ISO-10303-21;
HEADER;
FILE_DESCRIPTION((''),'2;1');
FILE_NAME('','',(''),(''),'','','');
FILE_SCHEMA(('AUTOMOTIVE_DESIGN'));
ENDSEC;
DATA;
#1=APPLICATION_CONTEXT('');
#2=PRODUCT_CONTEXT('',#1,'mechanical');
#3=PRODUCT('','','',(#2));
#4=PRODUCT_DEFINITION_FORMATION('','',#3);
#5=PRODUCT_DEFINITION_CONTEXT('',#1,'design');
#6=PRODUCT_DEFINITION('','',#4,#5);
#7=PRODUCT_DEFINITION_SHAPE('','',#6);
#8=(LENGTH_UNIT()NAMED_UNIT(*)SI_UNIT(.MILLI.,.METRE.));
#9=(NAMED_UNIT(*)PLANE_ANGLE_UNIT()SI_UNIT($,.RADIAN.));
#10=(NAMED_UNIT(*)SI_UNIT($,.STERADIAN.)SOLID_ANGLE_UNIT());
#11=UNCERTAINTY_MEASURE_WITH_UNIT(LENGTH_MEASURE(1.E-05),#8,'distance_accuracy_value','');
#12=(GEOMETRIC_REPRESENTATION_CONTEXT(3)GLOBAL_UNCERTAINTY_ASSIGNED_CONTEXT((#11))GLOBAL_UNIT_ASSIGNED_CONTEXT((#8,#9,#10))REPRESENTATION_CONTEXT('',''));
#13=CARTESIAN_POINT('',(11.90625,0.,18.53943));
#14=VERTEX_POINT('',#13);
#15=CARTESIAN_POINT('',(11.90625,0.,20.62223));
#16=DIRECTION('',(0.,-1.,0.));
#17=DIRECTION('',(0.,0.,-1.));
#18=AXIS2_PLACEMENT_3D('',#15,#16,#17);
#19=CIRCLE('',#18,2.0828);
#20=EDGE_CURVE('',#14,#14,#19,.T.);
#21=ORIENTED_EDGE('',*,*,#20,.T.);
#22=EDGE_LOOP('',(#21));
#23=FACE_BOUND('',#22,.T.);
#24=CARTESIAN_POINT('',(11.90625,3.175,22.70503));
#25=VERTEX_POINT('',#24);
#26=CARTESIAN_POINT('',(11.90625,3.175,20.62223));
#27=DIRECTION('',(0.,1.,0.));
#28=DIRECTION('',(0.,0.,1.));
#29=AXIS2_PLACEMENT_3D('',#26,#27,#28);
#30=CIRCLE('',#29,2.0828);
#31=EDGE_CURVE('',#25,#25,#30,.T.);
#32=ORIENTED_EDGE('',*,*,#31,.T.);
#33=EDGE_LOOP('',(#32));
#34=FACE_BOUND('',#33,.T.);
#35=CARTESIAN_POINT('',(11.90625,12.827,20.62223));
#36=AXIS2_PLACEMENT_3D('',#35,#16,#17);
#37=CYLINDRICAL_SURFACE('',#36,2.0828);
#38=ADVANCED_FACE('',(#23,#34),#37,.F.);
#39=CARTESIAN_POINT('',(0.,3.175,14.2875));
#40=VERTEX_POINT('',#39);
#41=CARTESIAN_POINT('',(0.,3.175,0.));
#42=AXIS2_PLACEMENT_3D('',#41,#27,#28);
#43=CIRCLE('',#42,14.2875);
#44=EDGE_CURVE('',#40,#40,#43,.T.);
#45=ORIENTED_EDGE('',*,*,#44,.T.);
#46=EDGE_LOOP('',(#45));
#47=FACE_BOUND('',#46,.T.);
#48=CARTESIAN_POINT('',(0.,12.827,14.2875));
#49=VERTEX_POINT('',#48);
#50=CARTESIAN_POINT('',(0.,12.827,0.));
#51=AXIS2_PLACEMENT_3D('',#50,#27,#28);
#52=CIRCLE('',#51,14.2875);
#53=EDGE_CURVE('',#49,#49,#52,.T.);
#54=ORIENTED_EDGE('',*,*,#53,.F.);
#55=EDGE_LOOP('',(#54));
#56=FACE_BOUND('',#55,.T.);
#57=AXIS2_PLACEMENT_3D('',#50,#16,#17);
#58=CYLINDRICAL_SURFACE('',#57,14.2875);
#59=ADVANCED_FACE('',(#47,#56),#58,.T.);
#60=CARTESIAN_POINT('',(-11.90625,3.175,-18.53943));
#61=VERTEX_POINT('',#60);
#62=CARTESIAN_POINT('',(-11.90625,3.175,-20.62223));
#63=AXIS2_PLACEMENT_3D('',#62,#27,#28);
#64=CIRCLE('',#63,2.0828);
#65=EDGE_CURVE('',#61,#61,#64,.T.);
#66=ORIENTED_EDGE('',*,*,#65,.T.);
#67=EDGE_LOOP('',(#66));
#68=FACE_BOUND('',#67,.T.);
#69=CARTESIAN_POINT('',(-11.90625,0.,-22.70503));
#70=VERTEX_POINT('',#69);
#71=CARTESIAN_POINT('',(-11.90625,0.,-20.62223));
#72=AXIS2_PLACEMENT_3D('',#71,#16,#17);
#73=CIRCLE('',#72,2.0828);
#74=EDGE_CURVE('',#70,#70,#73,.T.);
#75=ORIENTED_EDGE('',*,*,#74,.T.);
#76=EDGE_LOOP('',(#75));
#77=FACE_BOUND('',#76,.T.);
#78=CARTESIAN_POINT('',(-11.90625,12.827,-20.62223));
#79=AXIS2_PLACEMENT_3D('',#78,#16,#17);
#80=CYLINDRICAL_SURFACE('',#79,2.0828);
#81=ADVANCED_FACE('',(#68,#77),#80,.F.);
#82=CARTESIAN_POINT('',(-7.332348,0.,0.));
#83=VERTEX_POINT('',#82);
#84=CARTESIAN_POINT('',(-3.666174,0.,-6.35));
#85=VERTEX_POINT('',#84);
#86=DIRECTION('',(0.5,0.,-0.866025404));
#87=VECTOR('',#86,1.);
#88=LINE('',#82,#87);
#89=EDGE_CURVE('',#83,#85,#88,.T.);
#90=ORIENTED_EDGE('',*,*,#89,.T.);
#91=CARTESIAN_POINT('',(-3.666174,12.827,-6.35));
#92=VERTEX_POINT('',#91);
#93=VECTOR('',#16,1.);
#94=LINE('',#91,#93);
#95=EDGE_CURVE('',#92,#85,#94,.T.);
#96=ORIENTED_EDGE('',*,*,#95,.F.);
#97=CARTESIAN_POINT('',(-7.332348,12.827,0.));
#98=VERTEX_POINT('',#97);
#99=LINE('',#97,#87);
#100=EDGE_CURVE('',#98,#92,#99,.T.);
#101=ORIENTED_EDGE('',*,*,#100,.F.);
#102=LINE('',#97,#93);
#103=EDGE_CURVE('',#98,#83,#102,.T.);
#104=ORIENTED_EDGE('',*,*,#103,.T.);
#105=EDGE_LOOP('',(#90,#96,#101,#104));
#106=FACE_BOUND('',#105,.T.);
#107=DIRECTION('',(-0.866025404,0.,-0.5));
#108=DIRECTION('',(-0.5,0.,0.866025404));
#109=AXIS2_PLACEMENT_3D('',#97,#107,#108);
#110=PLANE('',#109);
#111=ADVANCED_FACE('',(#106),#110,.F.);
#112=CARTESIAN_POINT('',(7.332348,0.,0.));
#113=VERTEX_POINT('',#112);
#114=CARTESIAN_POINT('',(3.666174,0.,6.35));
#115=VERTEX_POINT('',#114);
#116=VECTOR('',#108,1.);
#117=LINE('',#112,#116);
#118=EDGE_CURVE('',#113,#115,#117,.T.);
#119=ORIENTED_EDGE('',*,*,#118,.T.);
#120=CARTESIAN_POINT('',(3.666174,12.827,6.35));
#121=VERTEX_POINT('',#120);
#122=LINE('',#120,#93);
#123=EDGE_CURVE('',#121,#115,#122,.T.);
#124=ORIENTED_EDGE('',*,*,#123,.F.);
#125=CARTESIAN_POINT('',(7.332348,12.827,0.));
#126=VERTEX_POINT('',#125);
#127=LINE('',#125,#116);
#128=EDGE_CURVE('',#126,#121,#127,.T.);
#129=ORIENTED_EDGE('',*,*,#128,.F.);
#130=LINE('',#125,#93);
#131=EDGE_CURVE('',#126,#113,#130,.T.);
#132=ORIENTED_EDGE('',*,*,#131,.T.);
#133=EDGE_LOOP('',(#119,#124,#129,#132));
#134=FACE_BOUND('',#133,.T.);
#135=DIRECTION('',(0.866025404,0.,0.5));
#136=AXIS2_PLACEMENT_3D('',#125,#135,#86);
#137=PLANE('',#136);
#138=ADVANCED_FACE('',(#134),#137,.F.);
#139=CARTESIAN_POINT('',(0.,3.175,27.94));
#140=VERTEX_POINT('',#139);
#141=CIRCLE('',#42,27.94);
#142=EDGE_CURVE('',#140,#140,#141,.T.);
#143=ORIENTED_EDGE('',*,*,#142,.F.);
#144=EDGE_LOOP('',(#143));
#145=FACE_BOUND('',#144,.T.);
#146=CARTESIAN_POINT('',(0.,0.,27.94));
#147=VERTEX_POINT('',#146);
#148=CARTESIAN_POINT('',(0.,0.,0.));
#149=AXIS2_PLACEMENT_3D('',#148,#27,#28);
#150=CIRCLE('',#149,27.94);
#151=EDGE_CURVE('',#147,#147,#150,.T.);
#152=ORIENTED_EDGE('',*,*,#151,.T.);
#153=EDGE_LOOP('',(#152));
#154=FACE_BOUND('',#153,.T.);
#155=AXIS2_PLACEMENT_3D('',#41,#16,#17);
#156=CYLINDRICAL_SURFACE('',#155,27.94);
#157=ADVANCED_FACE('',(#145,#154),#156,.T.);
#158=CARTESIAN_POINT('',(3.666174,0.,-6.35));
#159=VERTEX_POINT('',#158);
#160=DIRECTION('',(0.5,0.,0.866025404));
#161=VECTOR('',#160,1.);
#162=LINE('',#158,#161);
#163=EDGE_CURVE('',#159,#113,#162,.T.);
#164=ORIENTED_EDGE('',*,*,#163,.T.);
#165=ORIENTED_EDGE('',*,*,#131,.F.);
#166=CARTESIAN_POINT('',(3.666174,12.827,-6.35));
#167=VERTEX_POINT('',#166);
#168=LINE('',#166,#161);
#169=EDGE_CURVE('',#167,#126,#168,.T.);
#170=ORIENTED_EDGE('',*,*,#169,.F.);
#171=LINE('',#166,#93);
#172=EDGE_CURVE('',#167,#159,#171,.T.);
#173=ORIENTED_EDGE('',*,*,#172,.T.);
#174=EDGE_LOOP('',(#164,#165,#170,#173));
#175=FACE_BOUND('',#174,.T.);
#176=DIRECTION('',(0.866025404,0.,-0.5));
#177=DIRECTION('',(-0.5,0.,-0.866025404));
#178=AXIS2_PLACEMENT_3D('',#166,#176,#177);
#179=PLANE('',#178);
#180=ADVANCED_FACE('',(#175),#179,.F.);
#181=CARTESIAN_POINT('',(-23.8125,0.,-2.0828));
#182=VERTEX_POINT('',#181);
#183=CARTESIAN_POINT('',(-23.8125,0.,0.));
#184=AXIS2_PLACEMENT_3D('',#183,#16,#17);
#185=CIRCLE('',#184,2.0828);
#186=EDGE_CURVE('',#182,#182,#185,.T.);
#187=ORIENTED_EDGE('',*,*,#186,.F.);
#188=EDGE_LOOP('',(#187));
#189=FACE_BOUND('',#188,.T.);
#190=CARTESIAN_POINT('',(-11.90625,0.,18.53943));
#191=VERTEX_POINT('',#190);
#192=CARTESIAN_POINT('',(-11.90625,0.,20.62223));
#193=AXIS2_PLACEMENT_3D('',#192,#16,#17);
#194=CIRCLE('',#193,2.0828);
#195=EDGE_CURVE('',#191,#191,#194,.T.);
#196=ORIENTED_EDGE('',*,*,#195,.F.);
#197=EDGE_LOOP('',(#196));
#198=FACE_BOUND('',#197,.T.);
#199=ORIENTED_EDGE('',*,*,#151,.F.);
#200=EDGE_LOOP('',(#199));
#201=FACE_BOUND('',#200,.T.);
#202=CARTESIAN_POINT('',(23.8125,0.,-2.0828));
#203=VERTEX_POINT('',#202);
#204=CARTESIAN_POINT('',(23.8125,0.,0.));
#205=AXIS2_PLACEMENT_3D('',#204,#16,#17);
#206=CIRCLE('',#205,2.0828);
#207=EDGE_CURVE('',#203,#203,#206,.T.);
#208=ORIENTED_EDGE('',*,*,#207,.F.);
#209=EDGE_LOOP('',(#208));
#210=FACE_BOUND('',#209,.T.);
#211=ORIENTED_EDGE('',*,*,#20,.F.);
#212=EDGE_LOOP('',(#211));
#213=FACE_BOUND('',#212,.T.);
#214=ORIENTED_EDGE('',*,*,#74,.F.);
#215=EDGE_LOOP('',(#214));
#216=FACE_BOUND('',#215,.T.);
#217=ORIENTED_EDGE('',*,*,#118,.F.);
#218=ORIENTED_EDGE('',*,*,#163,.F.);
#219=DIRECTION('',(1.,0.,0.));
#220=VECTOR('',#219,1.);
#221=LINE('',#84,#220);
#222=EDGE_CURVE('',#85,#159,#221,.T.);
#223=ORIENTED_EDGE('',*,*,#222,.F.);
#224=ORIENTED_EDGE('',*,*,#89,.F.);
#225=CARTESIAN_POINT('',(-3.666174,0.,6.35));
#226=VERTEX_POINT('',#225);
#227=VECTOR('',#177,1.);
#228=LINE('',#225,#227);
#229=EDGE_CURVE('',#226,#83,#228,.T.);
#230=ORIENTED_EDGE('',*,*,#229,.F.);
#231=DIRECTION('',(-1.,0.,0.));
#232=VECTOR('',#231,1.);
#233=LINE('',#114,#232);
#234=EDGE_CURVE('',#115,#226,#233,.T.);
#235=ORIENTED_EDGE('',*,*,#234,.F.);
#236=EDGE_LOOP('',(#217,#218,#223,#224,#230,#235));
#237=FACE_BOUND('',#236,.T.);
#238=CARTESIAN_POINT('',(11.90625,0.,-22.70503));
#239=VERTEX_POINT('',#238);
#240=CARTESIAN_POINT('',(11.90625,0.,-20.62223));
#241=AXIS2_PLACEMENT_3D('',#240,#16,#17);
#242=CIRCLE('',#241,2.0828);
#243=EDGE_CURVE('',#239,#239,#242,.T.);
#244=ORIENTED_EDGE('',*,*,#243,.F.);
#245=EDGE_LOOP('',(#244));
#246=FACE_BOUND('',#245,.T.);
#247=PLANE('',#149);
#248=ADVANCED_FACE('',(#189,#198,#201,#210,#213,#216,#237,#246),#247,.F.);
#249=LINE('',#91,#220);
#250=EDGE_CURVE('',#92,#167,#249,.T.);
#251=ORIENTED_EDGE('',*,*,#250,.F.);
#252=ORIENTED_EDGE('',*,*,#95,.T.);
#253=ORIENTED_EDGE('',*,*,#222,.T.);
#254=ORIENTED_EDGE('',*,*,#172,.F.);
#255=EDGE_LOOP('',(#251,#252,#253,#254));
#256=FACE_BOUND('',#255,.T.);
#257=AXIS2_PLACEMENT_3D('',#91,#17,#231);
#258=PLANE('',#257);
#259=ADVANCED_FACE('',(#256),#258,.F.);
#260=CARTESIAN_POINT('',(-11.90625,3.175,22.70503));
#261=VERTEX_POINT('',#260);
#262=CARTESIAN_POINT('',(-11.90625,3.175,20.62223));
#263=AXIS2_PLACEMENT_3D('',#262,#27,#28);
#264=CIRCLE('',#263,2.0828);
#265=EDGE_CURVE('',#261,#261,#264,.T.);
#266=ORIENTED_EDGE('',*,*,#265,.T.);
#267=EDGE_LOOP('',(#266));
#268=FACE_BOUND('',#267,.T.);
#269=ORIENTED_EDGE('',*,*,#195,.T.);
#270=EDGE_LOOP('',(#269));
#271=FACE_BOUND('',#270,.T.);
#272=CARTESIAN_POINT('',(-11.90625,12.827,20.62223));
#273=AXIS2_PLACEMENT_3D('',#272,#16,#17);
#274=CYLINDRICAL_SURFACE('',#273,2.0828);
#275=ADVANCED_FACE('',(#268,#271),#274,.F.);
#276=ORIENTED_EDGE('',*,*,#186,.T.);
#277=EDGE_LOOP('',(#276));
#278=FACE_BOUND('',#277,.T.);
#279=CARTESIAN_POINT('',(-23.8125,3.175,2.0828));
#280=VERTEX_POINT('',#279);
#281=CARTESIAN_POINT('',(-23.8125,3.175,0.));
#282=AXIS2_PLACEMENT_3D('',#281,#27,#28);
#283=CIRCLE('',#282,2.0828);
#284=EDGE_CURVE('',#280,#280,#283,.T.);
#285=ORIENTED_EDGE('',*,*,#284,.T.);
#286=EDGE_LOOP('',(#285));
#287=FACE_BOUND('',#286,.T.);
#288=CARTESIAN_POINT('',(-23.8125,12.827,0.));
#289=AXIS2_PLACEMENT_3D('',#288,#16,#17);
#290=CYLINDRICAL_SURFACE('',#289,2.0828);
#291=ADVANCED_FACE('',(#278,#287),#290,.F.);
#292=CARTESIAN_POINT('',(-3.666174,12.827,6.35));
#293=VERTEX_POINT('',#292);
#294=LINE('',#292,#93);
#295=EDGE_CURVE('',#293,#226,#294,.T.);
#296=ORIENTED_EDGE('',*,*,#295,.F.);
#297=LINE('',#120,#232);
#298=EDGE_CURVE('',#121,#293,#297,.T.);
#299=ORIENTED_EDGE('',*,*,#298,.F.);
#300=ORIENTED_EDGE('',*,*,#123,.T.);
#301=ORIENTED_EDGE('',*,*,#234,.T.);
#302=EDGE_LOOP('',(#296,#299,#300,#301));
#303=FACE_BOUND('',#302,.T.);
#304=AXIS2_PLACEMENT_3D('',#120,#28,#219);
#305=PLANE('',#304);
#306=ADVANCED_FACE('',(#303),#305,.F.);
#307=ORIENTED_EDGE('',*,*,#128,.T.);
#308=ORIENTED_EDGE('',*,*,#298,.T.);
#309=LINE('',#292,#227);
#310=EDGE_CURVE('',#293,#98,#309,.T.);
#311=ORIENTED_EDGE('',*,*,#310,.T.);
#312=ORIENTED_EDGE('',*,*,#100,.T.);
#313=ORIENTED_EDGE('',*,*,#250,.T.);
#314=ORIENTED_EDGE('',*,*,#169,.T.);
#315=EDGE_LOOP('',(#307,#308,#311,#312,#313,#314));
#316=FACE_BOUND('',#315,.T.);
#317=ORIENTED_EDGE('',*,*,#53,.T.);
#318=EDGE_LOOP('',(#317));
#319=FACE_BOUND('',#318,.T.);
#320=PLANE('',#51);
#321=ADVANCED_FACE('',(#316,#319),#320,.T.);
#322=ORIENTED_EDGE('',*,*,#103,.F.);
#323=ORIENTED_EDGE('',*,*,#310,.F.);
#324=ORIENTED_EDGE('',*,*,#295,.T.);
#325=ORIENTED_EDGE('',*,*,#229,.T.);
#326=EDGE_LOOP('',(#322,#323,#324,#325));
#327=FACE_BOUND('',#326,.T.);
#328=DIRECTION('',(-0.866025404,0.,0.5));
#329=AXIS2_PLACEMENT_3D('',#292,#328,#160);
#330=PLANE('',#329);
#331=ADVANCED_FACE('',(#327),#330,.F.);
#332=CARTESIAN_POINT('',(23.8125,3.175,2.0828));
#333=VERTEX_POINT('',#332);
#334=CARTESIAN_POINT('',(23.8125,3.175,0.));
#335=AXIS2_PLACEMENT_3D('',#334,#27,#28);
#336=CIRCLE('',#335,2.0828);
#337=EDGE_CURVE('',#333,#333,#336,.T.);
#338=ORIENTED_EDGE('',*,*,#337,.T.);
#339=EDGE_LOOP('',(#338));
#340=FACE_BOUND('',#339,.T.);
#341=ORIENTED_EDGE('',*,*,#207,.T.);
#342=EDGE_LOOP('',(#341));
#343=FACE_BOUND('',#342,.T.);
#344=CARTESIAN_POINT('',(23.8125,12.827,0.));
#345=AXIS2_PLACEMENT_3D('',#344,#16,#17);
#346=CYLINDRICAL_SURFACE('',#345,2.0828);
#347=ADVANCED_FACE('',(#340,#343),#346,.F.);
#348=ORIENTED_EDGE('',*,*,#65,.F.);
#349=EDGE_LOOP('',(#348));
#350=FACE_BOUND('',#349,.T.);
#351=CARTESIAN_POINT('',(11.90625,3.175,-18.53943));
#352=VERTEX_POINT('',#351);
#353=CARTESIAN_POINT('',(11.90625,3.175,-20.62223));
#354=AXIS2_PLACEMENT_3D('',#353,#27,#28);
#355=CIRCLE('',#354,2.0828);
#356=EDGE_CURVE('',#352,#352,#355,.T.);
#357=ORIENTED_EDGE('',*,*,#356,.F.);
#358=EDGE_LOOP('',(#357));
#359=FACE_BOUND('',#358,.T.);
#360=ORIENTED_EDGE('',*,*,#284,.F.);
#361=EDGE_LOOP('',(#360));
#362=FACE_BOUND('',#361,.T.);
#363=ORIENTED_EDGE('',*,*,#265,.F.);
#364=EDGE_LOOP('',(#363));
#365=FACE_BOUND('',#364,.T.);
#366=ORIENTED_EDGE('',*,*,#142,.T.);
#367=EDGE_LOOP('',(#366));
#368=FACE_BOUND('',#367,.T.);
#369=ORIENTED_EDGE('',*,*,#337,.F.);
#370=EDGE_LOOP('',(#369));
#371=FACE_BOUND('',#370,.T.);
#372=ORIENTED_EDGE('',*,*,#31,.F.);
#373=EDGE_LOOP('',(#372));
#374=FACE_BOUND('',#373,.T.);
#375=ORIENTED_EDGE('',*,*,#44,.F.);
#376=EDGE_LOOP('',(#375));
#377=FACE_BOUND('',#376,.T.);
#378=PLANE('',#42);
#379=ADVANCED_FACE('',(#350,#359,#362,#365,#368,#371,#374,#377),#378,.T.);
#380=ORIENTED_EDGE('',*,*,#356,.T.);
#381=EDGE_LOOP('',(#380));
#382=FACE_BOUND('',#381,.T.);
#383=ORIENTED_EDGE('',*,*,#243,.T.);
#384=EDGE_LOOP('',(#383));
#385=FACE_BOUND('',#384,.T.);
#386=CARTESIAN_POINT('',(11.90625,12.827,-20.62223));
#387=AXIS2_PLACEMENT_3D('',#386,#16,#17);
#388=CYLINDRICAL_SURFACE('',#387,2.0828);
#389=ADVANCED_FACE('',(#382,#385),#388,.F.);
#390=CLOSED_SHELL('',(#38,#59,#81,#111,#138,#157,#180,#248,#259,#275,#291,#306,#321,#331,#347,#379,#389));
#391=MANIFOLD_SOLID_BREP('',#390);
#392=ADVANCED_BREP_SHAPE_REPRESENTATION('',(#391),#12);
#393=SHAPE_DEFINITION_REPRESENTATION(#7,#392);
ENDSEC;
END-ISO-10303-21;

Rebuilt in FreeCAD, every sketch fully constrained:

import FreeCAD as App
import Part
import Sketcher
from FreeCAD import Vector
Q = App.Units.Quantity

doc = App.newDocument("Part")
body = doc.addObject("PartDesign::Body", "Body")

sketch1 = body.newObject("Sketcher::SketchObject", "Sketch")
sketch1.AttachmentSupport = (doc.getObject("XZ_Plane"), [""])
sketch1.MapMode = "FlatFace"
sketch1.addGeometry(Part.Circle(Vector(0, 0, 0), Vector(0, 0, 1), 27.94), False)
sketch1.addConstraint(Sketcher.Constraint("Coincident", 0, 3, -1, 1))
sketch1.addConstraint(Sketcher.Constraint("Diameter", 0, Q("2.2 in")))
pad1 = body.newObject("PartDesign::Pad", "Pad")
pad1.Profile = sketch1
pad1.Length = Q("0.125 in")
pad1.Reversed = True

sketch2 = body.newObject("Sketcher::SketchObject", "Sketch001")
sketch2.AttachmentSupport = (doc.getObject("XZ_Plane"), [""])
sketch2.MapMode = "FlatFace"
sketch2.AttachmentOffset = App.Placement(Vector(0, 0, -0.125 * 25.4), App.Rotation())
sketch2.addGeometry(Part.Circle(Vector(0, 0, 0), Vector(0, 0, 1), 14.2875), False)
sketch2.addConstraint(Sketcher.Constraint("Coincident", 0, 3, -1, 1))
sketch2.addConstraint(Sketcher.Constraint("Diameter", 0, Q("1.125 in")))
pad2 = body.newObject("PartDesign::Pad", "Pad001")
pad2.Profile = sketch2
pad2.Length = Q("0.38 in")
pad2.Reversed = True

sketch3 = body.newObject("Sketcher::SketchObject", "Sketch002")
sketch3.AttachmentSupport = (doc.getObject("XZ_Plane"), [""])
sketch3.MapMode = "FlatFace"
sketch3.addGeometry(Part.LineSegment(Vector(3.666174, -6.35, 0), Vector(7.332348, 0, 0)), False)
sketch3.addGeometry(Part.LineSegment(Vector(7.332348, 0, 0), Vector(3.666174, 6.35, 0)), False)
sketch3.addGeometry(Part.LineSegment(Vector(3.666174, 6.35, 0), Vector(-3.666174, 6.35, 0)), False)
sketch3.addGeometry(Part.LineSegment(Vector(-3.666174, 6.35, 0), Vector(-7.332348, 0, 0)), False)
sketch3.addGeometry(Part.LineSegment(Vector(-7.332348, 0, 0), Vector(-3.666174, -6.35, 0)), False)
sketch3.addGeometry(Part.LineSegment(Vector(-3.666174, -6.35, 0), Vector(3.666174, -6.35, 0)), False)
sketch3.addConstraint(Sketcher.Constraint("Coincident", 0, 2, 1, 1))
sketch3.addConstraint(Sketcher.Constraint("Coincident", 1, 2, 2, 1))
sketch3.addConstraint(Sketcher.Constraint("Coincident", 2, 2, 3, 1))
sketch3.addConstraint(Sketcher.Constraint("Coincident", 3, 2, 4, 1))
sketch3.addConstraint(Sketcher.Constraint("Coincident", 4, 2, 5, 1))
sketch3.addConstraint(Sketcher.Constraint("Coincident", 5, 2, 0, 1))
sketch3.addConstraint(Sketcher.Constraint("Horizontal", 2))
sketch3.addConstraint(Sketcher.Constraint("Horizontal", 5))
sketch3.addConstraint(Sketcher.Constraint("Symmetric", 0, 2, 3, 2, -1, 1))
sketch3.addConstraint(Sketcher.Constraint("Symmetric", 1, 2, 4, 2, -1, 1))
sketch3.addConstraint(Sketcher.Constraint("PointOnObject", 0, 2, -1))
sketch3.addConstraint(Sketcher.Constraint("Parallel", 0, 3))
sketch3.addConstraint(Sketcher.Constraint("Vertical", 2, 2, 4, 2))
sketch3.addConstraint(Sketcher.Constraint("Angle", 0, Q("60 deg")))
sketch3.addConstraint(Sketcher.Constraint("DistanceY", 4, 2, 2, 2, Q("0.5 in")))
sketch3.addConstraint(Sketcher.Constraint("DistanceX", 2, 2, 2, 1, Q("7.332348 mm")))
pocket1 = body.newObject("PartDesign::Pocket", "Pocket")
pocket1.Profile = sketch3
pocket1.Type = "ThroughAll"

sketch4 = body.newObject("Sketcher::SketchObject", "Sketch003")
sketch4.AttachmentSupport = (doc.getObject("XZ_Plane"), [""])
sketch4.MapMode = "FlatFace"
sketch4.addGeometry(Part.Circle(Vector(-11.90625, 20.62223, 0), Vector(0, 0, 1), 2.0828), False)
sketch4.addGeometry(Part.Circle(Vector(11.90625, 20.62223, 0), Vector(0, 0, 1), 2.0828), False)
sketch4.addGeometry(Part.Circle(Vector(23.8125, 0, 0), Vector(0, 0, 1), 2.0828), False)
sketch4.addGeometry(Part.Circle(Vector(11.90625, -20.62223, 0), Vector(0, 0, 1), 2.0828), False)
sketch4.addGeometry(Part.Circle(Vector(-11.90625, -20.62223, 0), Vector(0, 0, 1), 2.0828), False)
sketch4.addGeometry(Part.Circle(Vector(-23.8125, 0, 0), Vector(0, 0, 1), 2.0828), False)
sketch4.addConstraint(Sketcher.Constraint("Equal", 0, 1))
sketch4.addConstraint(Sketcher.Constraint("Equal", 1, 2))
sketch4.addConstraint(Sketcher.Constraint("Equal", 2, 3))
sketch4.addConstraint(Sketcher.Constraint("Equal", 3, 4))
sketch4.addConstraint(Sketcher.Constraint("Equal", 4, 5))
sketch4.addConstraint(Sketcher.Constraint("Symmetric", 0, 3, 3, 3, -1, 1))
sketch4.addConstraint(Sketcher.Constraint("Symmetric", 1, 3, 4, 3, -1, 1))
sketch4.addConstraint(Sketcher.Constraint("Symmetric", 2, 3, 5, 3, -1, 1))
sketch4.addConstraint(Sketcher.Constraint("Symmetric", 0, 3, 1, 3, -2))
sketch4.addConstraint(Sketcher.Constraint("PointOnObject", 2, 3, -1))
sketch4.addConstraint(Sketcher.Constraint("Diameter", 0, Q("0.164 in")))
sketch4.addConstraint(Sketcher.Constraint("DistanceX", 0, 3, -1, 1, Q("0.46875 in")))
sketch4.addConstraint(Sketcher.Constraint("DistanceX", -1, 1, 2, 3, Q("0.9375 in")))
sketch4.addConstraint(Sketcher.Constraint("DistanceY", -1, 1, 0, 3, Q("20.62223 mm")))
pocket2 = body.newObject("PartDesign::Pocket", "Pocket001")
pocket2.Profile = sketch4
pocket2.Type = "ThroughAll"

doc.recompute()
